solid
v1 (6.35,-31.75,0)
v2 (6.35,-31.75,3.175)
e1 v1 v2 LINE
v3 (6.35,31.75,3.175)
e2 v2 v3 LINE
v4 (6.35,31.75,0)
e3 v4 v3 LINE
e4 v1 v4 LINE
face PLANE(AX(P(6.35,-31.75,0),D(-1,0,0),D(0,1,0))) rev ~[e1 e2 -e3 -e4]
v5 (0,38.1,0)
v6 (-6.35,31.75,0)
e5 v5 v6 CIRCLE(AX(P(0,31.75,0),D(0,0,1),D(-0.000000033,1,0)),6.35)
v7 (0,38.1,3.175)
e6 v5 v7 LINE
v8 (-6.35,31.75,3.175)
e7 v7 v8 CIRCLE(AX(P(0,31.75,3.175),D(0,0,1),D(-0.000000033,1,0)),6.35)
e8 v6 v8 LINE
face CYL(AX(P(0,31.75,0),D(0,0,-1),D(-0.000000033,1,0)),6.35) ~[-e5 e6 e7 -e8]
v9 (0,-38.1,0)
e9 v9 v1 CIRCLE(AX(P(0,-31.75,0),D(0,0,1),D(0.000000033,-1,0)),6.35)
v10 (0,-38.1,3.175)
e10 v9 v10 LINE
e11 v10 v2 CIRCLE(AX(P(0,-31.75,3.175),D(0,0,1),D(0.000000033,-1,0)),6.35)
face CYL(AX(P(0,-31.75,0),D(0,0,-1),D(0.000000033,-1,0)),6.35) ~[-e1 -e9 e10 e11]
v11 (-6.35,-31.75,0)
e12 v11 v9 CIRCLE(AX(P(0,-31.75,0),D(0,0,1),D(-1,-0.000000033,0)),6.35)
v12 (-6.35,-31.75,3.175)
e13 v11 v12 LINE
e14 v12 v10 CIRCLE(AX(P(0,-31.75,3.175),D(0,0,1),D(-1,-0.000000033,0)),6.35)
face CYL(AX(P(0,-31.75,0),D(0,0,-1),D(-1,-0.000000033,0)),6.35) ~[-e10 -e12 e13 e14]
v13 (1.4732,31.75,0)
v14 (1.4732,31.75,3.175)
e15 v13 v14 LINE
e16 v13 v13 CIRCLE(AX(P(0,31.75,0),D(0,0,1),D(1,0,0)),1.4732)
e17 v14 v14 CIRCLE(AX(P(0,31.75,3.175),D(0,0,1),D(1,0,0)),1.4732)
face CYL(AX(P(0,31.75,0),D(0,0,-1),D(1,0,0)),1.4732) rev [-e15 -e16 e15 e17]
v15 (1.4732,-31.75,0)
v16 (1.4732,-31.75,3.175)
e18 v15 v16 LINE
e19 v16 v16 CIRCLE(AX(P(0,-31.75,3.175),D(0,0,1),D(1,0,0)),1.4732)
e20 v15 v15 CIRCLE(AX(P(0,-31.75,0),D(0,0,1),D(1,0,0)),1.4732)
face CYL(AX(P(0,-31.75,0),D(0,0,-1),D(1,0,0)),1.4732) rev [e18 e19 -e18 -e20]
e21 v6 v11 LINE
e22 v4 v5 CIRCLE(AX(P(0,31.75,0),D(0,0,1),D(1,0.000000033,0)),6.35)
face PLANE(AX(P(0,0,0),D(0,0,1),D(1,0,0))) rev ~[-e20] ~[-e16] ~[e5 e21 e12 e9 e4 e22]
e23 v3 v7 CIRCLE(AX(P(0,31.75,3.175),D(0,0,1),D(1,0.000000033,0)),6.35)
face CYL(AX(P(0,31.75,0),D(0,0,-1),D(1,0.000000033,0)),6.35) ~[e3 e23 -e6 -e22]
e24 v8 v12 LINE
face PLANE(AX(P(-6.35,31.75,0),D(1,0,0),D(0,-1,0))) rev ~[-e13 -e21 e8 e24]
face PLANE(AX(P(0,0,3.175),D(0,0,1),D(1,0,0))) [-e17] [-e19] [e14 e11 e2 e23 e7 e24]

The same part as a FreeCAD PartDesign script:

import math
import FreeCAD as App
import Part
import Sketcher

V = App.Vector
Q = App.Units.Quantity

doc = App.newDocument("Part")
params = doc.addObject("Spreadsheet::Sheet", "Params")
for row, (alias, value) in enumerate([
    ("sketch1_radius", "0.25 in"),
    ("sketch1_diameter", "0.116 in"),
    ("sketch1_height", "2.5 in"),
    ("pad1_length", "0.125 in"),
], start=1):
    params.set(f"A{row}", alias)
    params.set(f"B{row}", "=" + value)
    params.setAlias(f"B{row}", alias)

body = doc.addObject("PartDesign::Body", "Body")

# Sketch on XY plane
sketch1 = doc.addObject("Sketcher::SketchObject", "Sketch")
body.addObject(sketch1)
sketch1.AttachmentSupport = (doc.XY_Plane, [""])
sketch1.MapMode = "FlatFace"
sketch1.addGeometry([
    Part.LineSegment(V(6.35, -31.75, 0), V(6.35, 31.75, 0)),  # 0
    Part.ArcOfCircle(Part.Circle(V(0, 31.75, 0), V(0, 0, 1), 6.35), math.radians(0.000002), math.radians(89.999998)),  # 1
    Part.ArcOfCircle(Part.Circle(V(0, 31.75, 0), V(0, 0, 1), 6.35), math.radians(90.000002), math.radians(179.999998)),  # 2
    Part.LineSegment(V(-6.35, 31.75, 0), V(-6.35, -31.75, 0)),  # 3
    Part.ArcOfCircle(Part.Circle(V(0, -31.75, 0), V(0, 0, 1), 6.35), math.radians(-179.999998), math.radians(-90.000002)),  # 4
    Part.ArcOfCircle(Part.Circle(V(0, -31.75, 0), V(0, 0, 1), 6.35), math.radians(-89.999998), math.radians(-0.000002)),  # 5
    Part.Circle(V(0, -31.75, 0), V(0, 0, 1), 1.4732),  # 6
    Part.Circle(V(0, 31.75, 0), V(0, 0, 1), 1.4732),  # 7
], False)
sketch1.addConstraint([
    Sketcher.Constraint("Tangent", 0, 2, 1, 1),
    Sketcher.Constraint("Tangent", 1, 2, 2, 1),
    Sketcher.Constraint("Tangent", 2, 2, 3, 1),
    Sketcher.Constraint("Tangent", 3, 2, 4, 1),
    Sketcher.Constraint("Tangent", 4, 2, 5, 1),
    Sketcher.Constraint("Tangent", 5, 2, 0, 1),
    Sketcher.Constraint("Vertical", 0),
    Sketcher.Constraint("Vertical", 3),
    Sketcher.Constraint("Coincident", 6, 3, 4, 3),
    Sketcher.Constraint("Coincident", 7, 3, 1, 3),
    Sketcher.Constraint("Equal", 1, 2),
    Sketcher.Constraint("Equal", 2, 4),
    Sketcher.Constraint("Equal", 6, 7),
    Sketcher.Constraint("Symmetric", 1, 3, 4, 3, -1, 1),
    Sketcher.Constraint("PointOnObject", 1, 2, -2),
    Sketcher.Constraint("PointOnObject", 4, 2, -2),
    Sketcher.Constraint("Radius", 1, Q("0.25 in")),
    Sketcher.Constraint("Diameter", 6, Q("0.116 in")),
    Sketcher.Constraint("DistanceY", 0, 1, 0, 2, Q("2.5 in")),
])
sketch1.setExpression("Constraints[16]", "Params.sketch1_radius")
sketch1.setExpression("Constraints[17]", "Params.sketch1_diameter")
sketch1.setExpression("Constraints[18]", "Params.sketch1_height")
pad1 = doc.addObject("PartDesign::Pad", "Pad")
body.addObject(pad1)
pad1.Profile = sketch1
pad1.setExpression("Length", "Params.pad1_length")

doc.recompute()
